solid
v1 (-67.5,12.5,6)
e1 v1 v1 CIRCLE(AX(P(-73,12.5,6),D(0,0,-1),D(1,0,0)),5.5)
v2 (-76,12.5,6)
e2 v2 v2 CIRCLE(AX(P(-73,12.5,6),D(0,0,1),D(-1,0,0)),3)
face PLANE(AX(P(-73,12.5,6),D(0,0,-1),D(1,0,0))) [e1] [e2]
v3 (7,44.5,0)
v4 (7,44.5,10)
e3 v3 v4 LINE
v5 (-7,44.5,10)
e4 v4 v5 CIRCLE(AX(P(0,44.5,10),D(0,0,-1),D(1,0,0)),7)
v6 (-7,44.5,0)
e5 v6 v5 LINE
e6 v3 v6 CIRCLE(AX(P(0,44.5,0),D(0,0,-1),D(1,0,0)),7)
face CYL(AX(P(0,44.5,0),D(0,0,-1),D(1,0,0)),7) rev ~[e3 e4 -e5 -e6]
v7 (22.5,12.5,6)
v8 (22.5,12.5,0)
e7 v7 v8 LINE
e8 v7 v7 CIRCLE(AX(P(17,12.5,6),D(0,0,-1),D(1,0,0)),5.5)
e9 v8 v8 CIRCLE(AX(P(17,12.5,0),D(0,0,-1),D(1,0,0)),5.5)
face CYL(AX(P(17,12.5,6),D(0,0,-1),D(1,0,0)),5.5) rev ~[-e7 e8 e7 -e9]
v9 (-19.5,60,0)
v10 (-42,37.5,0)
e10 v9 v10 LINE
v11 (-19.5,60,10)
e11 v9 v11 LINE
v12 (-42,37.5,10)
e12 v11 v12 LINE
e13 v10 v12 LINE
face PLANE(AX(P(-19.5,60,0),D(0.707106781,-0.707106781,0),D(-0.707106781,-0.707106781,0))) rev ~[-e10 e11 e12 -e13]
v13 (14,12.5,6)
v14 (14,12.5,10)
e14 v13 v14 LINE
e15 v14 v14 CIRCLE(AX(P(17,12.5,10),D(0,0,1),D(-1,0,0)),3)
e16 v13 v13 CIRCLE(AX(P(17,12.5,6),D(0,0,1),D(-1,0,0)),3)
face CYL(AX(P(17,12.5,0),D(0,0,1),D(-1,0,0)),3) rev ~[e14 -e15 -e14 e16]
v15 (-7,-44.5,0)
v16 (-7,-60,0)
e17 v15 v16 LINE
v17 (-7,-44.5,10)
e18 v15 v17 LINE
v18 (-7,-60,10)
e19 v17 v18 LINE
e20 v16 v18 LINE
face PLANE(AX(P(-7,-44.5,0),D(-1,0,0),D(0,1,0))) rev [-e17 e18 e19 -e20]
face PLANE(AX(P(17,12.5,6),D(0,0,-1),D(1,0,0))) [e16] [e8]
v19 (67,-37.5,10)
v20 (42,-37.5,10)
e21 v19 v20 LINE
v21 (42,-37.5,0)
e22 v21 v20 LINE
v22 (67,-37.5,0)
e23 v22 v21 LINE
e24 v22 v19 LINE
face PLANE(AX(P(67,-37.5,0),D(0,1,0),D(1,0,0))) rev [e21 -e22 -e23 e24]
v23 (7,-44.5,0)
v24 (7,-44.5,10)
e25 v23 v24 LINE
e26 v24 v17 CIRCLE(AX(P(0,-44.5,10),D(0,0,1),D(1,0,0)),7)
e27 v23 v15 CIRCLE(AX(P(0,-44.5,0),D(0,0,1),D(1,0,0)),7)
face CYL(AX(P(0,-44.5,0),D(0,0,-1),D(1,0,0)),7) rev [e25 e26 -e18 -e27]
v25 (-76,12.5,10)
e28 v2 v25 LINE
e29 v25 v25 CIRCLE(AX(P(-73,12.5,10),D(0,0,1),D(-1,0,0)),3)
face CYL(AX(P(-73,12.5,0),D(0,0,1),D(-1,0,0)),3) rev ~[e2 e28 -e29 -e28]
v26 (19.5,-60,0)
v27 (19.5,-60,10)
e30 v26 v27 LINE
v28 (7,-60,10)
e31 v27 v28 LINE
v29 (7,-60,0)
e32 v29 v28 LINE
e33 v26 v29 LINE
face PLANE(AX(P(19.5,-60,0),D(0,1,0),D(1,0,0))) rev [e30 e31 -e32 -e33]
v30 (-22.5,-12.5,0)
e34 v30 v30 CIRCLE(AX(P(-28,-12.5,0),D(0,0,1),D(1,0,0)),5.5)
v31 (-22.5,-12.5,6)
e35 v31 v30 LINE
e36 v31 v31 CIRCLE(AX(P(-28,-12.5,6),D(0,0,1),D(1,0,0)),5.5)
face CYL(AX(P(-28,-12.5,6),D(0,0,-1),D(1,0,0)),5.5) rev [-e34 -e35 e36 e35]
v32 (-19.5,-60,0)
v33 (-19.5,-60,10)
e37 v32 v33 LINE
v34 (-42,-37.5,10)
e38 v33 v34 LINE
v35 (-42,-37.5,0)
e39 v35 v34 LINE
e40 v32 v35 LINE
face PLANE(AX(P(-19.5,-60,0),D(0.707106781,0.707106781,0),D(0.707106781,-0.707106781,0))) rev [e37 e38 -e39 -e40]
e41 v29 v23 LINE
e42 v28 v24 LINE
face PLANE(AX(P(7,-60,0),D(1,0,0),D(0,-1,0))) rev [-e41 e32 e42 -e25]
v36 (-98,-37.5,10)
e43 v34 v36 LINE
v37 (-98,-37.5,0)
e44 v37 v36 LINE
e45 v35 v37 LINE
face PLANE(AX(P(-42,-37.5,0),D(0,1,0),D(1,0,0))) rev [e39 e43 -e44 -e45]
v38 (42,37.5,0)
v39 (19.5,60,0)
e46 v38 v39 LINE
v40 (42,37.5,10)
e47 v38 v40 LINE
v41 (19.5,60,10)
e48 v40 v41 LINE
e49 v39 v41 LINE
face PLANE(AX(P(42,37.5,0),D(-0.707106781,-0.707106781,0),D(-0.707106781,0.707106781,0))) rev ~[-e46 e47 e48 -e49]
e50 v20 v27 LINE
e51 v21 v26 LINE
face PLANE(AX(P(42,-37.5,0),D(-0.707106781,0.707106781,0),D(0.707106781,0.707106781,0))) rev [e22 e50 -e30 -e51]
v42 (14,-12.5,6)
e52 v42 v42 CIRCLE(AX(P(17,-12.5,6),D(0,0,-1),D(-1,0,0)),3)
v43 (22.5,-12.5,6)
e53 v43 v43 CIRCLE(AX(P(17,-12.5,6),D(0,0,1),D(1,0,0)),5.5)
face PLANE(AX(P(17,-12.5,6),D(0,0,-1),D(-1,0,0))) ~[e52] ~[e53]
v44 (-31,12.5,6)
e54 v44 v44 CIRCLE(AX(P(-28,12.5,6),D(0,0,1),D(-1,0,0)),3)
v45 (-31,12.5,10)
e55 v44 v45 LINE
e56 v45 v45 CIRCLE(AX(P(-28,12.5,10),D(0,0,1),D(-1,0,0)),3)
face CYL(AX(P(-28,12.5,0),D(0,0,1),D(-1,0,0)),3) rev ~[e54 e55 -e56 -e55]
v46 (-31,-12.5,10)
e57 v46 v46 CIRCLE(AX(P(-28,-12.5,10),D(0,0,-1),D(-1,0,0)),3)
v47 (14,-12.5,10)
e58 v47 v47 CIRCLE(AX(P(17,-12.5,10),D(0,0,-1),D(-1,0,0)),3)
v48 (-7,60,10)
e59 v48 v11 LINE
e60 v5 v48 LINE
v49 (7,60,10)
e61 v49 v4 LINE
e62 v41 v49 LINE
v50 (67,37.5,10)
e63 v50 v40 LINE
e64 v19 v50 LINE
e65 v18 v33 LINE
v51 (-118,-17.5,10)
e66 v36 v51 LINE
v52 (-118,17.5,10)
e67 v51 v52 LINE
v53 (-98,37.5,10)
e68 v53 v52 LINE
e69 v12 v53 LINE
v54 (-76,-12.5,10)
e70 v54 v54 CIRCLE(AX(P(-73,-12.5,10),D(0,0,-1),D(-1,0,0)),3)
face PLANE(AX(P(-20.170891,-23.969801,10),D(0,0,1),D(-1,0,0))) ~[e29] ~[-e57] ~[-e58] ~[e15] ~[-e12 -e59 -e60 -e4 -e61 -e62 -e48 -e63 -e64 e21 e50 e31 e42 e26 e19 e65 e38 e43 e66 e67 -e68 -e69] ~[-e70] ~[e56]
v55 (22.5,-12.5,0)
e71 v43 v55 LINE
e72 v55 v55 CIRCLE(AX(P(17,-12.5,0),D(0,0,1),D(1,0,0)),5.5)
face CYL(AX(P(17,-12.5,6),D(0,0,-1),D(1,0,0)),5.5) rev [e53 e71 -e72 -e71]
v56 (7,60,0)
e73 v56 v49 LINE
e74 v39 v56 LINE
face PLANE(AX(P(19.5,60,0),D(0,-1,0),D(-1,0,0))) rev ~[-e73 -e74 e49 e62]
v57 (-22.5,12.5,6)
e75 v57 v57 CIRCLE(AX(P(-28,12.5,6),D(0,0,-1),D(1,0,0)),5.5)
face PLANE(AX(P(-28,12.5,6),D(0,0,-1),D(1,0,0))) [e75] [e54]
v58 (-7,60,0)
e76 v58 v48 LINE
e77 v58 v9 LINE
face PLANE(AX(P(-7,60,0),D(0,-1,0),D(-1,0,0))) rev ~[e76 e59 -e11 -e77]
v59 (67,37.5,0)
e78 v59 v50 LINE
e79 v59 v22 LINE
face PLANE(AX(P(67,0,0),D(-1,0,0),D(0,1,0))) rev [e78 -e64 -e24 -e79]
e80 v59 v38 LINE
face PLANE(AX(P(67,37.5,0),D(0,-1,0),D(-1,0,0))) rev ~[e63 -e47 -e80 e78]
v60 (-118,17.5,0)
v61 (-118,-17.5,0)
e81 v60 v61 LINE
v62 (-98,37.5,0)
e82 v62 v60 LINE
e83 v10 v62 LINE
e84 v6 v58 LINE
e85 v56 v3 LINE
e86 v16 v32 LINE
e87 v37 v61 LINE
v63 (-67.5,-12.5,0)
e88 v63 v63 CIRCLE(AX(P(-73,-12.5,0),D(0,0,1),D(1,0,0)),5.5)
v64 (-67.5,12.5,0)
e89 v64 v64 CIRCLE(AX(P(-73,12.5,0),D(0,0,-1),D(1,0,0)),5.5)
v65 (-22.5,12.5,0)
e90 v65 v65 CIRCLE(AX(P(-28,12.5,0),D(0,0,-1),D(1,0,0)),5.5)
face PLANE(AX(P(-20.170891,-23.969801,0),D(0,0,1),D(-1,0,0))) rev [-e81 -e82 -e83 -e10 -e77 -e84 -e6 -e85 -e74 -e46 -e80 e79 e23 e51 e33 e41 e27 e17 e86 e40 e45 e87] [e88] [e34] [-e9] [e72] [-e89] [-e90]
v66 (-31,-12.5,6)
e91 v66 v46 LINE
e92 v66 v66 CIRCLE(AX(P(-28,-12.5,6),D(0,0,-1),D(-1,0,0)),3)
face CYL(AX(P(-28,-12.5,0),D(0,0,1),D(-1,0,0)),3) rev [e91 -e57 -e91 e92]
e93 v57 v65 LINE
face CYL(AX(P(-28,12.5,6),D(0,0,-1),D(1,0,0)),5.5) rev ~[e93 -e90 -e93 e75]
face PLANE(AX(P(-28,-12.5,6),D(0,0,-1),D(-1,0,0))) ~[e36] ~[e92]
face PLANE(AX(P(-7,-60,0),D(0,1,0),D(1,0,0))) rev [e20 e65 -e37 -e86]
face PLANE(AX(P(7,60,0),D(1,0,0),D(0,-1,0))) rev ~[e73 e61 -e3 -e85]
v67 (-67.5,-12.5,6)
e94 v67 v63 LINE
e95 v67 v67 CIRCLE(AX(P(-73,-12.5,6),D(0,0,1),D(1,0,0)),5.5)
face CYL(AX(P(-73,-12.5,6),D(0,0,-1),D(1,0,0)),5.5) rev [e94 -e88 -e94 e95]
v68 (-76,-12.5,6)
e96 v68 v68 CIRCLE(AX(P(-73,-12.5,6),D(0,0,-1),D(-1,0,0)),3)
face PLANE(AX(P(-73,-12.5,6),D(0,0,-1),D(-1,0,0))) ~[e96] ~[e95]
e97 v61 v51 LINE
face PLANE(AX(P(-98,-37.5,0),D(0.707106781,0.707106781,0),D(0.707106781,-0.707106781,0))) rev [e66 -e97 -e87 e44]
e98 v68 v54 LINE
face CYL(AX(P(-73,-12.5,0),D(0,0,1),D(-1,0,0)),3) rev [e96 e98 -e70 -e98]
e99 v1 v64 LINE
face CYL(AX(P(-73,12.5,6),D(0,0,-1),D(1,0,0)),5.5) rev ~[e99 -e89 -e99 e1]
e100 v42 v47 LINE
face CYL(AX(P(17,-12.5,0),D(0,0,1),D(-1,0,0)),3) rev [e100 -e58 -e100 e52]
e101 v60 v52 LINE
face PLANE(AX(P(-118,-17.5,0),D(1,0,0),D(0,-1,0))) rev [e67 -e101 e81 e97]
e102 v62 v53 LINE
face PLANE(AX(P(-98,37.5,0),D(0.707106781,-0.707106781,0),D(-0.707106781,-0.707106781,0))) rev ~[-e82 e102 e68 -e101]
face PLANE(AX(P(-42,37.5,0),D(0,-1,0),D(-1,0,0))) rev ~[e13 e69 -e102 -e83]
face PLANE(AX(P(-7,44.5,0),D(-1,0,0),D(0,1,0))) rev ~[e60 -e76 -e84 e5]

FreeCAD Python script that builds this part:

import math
import FreeCAD as App
import Part
import Sketcher
from FreeCAD import Vector

doc = App.newDocument("Part")
body = doc.addObject("PartDesign::Body", "Body")

sketch1 = body.newObject("Sketcher::SketchObject", "Sketch")
sketch1.AttachmentSupport = (doc.getObject("XY_Plane"), [""])
sketch1.MapMode = "FlatFace"
sketch1.addGeometry(Part.LineSegment(Vector(-118, 18, 0), Vector(-118, 0, 0)), False)
sketch1.addGeometry(Part.LineSegment(Vector(-118, 0, 0), Vector(67, 0, 0)), False)
sketch1.addGeometry(Part.LineSegment(Vector(67, 0, 0), Vector(67, 38, 0)), False)
sketch1.addGeometry(Part.LineSegment(Vector(67, 38, 0), Vector(42, 38, 0)), False)
sketch1.addGeometry(Part.LineSegment(Vector(42, 38, 0), Vector(20, 60, 0)), False)
sketch1.addGeometry(Part.LineSegment(Vector(20, 60, 0), Vector(7, 60, 0)), False)
sketch1.addGeometry(Part.LineSegment(Vector(7, 60, 0), Vector(7, 44, 0)), False)
sketch1.addGeometry(Part.ArcOfCircle(Part.Circle(Vector(0, 44, 0), Vector(0, 0, 1), 7), math.radians(180), math.radians(360)), False)
sketch1.addGeometry(Part.LineSegment(Vector(-7, 44, 0), Vector(-7, 60, 0)), False)
sketch1.addGeometry(Part.LineSegment(Vector(-7, 60, 0), Vector(-20, 60, 0)), False)
sketch1.addGeometry(Part.LineSegment(Vector(-20, 60, 0), Vector(-42, 38, 0)), False)
sketch1.addGeometry(Part.LineSegment(Vector(-42, 38, 0), Vector(-98, 38, 0)), False)
sketch1.addGeometry(Part.LineSegment(Vector(-98, 38, 0), Vector(-118, 18, 0)), False)
sketch1.addConstraint(Sketcher.Constraint("Coincident", 0, 2, 1, 1))
sketch1.addConstraint(Sketcher.Constraint("Coincident", 1, 2, 2, 1))
sketch1.addConstraint(Sketcher.Constraint("Coincident", 2, 2, 3, 1))
sketch1.addConstraint(Sketcher.Constraint("Coincident", 3, 2, 4, 1))
sketch1.addConstraint(Sketcher.Constraint("Coincident", 4, 2, 5, 1))
sketch1.addConstraint(Sketcher.Constraint("Coincident", 5, 2, 6, 1))
sketch1.addConstraint(Sketcher.Constraint("Tangent", 6, 2, 7, 2))
sketch1.addConstraint(Sketcher.Constraint("Tangent", 7, 1, 8, 1))
sketch1.addConstraint(Sketcher.Constraint("Coincident", 8, 2, 9, 1))
sketch1.addConstraint(Sketcher.Constraint("Coincident", 9, 2, 10, 1))
sketch1.addConstraint(Sketcher.Constraint("Coincident", 10, 2, 11, 1))
sketch1.addConstraint(Sketcher.Constraint("Coincident", 11, 2, 12, 1))
sketch1.addConstraint(Sketcher.Constraint("Coincident", 12, 2, 0, 1))
sketch1.addConstraint(Sketcher.Constraint("Vertical", 0))
sketch1.addConstraint(Sketcher.Constraint("Horizontal", 1))
sketch1.addConstraint(Sketcher.Constraint("Vertical", 2))
sketch1.addConstraint(Sketcher.Constraint("Horizontal", 3))
sketch1.addConstraint(Sketcher.Constraint("Horizontal", 5))
sketch1.addConstraint(Sketcher.Constraint("Vertical", 6))
sketch1.addConstraint(Sketcher.Constraint("Vertical", 8))
sketch1.addConstraint(Sketcher.Constraint("Horizontal", 9))
sketch1.addConstraint(Sketcher.Constraint("Horizontal", 11))
sketch1.addConstraint(Sketcher.Constraint("Symmetric", 5, 2, 8, 2, -2))
sketch1.addConstraint(Sketcher.Constraint("Symmetric", 3, 2, 10, 2, -2))
sketch1.addConstraint(Sketcher.Constraint("PointOnObject", 0, 2, -1))
sketch1.addConstraint(Sketcher.Constraint("Perpendicular", 4, 10))
sketch1.addConstraint(Sketcher.Constraint("Parallel", 10, 12))
sketch1.addConstraint(Sketcher.Constraint("Equal", 5, 9))
sketch1.addConstraint(Sketcher.Constraint("Radius", 7, 7.0))
sketch1.addConstraint(Sketcher.Constraint("DistanceX", 1, 1, 1, 2, 185.0))
sketch1.addConstraint(Sketcher.Constraint("DistanceX", 3, 2, 3, 1, 25.0))
sketch1.addConstraint(Sketcher.Constraint("DistanceX", 11, 2, 11, 1, 56.0))
sketch1.addConstraint(Sketcher.Constraint("DistanceX", 5, 2, 5, 1, 12.5))
sketch1.addConstraint(Sketcher.Constraint("DistanceY", 0, 2, 0, 1, 17.5))
sketch1.addConstraint(Sketcher.Constraint("DistanceY", 2, 1, 2, 2, 37.5))
sketch1.addConstraint(Sketcher.Constraint("DistanceY", 6, 2, 6, 1, 15.5))
pad1 = body.newObject("PartDesign::Pad", "Pad")
pad1.Profile = sketch1
pad1.Length = 10

sketch2 = body.newObject("Sketcher::SketchObject", "Sketch001")
sketch2.AttachmentSupport = (doc.getObject("XY_Plane"), [""])
sketch2.MapMode = "FlatFace"
sketch2.addGeometry(Part.Circle(Vector(-73, 12.5, 0), Vector(0, 0, 1), 3), False)
sketch2.addGeometry(Part.Circle(Vector(-28, 12.5, 0), Vector(0, 0, 1), 3), False)
sketch2.addGeometry(Part.Circle(Vector(17, 12.5, 0), Vector(0, 0, 1), 3), False)
sketch2.addConstraint(Sketcher.Constraint("Equal", 0, 1))
sketch2.addConstraint(Sketcher.Constraint("Equal", 1, 2))
sketch2.addConstraint(Sketcher.Constraint("Horizontal", 0, 3, 1, 3))
sketch2.addConstraint(Sketcher.Constraint("Horizontal", 1, 3, 2, 3))
sketch2.addConstraint(Sketcher.Constraint("Diameter", 0, 6.0))
sketch2.addConstraint(Sketcher.Constraint("DistanceX", 0, 3, -1, 1, 73.0))
sketch2.addConstraint(Sketcher.Constraint("DistanceX", 1, 3, -1, 1, 28.0))
sketch2.addConstraint(Sketcher.Constraint("DistanceX", -1, 1, 2, 3, 17.0))
sketch2.addConstraint(Sketcher.Constraint("DistanceY", -1, 1, 0, 3, 12.5))
doc.recompute()
hole = body.newObject("PartDesign::Hole", "Hole")
hole.Profile = sketch2
hole.ThreadType = "None"
hole.Diameter = 6
hole.DepthType = "ThroughAll"
hole.HoleCutType = "Counterbore"
hole.HoleCutDiameter = 11
hole.HoleCutDepth = 6
hole.Reversed = True
body2 = doc.addObject("PartDesign::Body", "Body001")
doc.recompute()

body2.BaseFeature = body
doc.recompute()

mirroring = doc.addObject("Part::Mirroring", "Mirroring")
mirroring.Source = body
mirroring.Base = Vector(0, 0, 0)
mirroring.Normal = Vector(0, -1, 0)
body3 = doc.addObject("PartDesign::Body", "Body002")
body3.BaseFeature = mirroring
boolean = body2.newObject("PartDesign::Boolean", "Boolean")
boolean.Type = "Fuse"
boolean.addObjects([body3])
doc.recompute()
mirroring.Visibility = False

doc.recompute()
